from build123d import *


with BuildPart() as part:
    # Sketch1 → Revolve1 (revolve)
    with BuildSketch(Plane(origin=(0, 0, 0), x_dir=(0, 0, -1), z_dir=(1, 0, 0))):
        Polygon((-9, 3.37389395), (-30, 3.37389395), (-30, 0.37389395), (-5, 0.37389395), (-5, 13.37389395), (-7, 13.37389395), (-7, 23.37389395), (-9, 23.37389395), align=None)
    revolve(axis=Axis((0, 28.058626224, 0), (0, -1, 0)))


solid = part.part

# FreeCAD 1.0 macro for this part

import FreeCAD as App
import Part
import Sketcher
from FreeCAD import Vector


def add_polygon(sketch, points):
    """Adds a closed chain of lines whose ends are joined by coincident constraints."""
    first, n = sketch.GeometryCount, len(points)
    for a, b in zip(points, points[1:] + points[:1]):
        sketch.addGeometry(Part.LineSegment(App.Vector(*a, 0), App.Vector(*b, 0)), False)
    for i in range(n):
        sketch.addConstraint(Sketcher.Constraint("Coincident", first + i, 2, first + (i + 1) % n, 1))

doc = App.newDocument("Part")
params = doc.addObject("Spreadsheet::Sheet", "Params")
for row, (alias, value) in enumerate([
    ("sketch1_width", "3 mm"),
    ("sketch1_width2", "13 mm"),
    ("sketch1_width3", "10 mm"),
    ("sketch1_height", "21 mm"),
    ("sketch1_height2", "25 mm"),
    ("revolution_angle", "360 deg"),
], start=1):
    params.set(f"A{row}", alias)
    params.set(f"B{row}", "=" + value)
    params.setAlias(f"B{row}", alias)

body = doc.addObject("PartDesign::Body", "Body")

# Sketch on YZ plane
sketch1 = doc.addObject("Sketcher::SketchObject", "Sketch")
body.addObject(sketch1)
sketch1.AttachmentSupport = (doc.YZ_Plane, [""])
sketch1.MapMode = "FlatFace"
add_polygon(sketch1, [(3.4, 9), (3.4, 30), (0.4, 30), (0.4, 5), (13.4, 5), (13.4, 7), (23.4, 7), (23.4, 9)])  # lines 0-7
sketch1.addConstraint(Sketcher.Constraint("Vertical", 0))
sketch1.addConstraint(Sketcher.Constraint("Horizontal", 1))
sketch1.addConstraint(Sketcher.Constraint("Vertical", 2))
sketch1.addConstraint(Sketcher.Constraint("Horizontal", 3))
sketch1.addConstraint(Sketcher.Constraint("Vertical", 4))
sketch1.addConstraint(Sketcher.Constraint("Horizontal", 5))
sketch1.addConstraint(Sketcher.Constraint("Vertical", 6))
sketch1.addConstraint(Sketcher.Constraint("Horizontal", 7))
sketch1.addConstraint(Sketcher.Constraint("Equal", 4, 6))
sketch1.addConstraint(Sketcher.Constraint("DistanceX", 1, 2, 1, 1, 3.0))
sketch1.addConstraint(Sketcher.Constraint("DistanceX", 3, 1, 3, 2, 13.0))
sketch1.addConstraint(Sketcher.Constraint("DistanceX", 5, 1, 5, 2, 10.0))
sketch1.addConstraint(Sketcher.Constraint("DistanceY", 0, 1, 0, 2, 21.0))
sketch1.addConstraint(Sketcher.Constraint("DistanceY", 2, 2, 2, 1, 25.0))
sketch1.addConstraint(Sketcher.Constraint("DistanceY", -1, 1, 0, 2, 30.0))
sketch1.addConstraint(Sketcher.Constraint("DistanceX", -1, 1, 0, 2, 3.373894))
sketch1.setExpression("Constraints[17]", "Params.sketch1_width")
sketch1.setExpression("Constraints[18]", "Params.sketch1_width2")
sketch1.setExpression("Constraints[19]", "Params.sketch1_width3")
sketch1.setExpression("Constraints[20]", "Params.sketch1_height")
sketch1.setExpression("Constraints[21]", "Params.sketch1_height2")
revolution = doc.addObject("PartDesign::Revolution", "Revolution")
body.addObject(revolution)
revolution.Profile = sketch1
revolution.ReferenceAxis = (sketch1, ["H_Axis"])
revolution.setExpression("Angle", "Params.revolution_angle")

doc.recompute()
